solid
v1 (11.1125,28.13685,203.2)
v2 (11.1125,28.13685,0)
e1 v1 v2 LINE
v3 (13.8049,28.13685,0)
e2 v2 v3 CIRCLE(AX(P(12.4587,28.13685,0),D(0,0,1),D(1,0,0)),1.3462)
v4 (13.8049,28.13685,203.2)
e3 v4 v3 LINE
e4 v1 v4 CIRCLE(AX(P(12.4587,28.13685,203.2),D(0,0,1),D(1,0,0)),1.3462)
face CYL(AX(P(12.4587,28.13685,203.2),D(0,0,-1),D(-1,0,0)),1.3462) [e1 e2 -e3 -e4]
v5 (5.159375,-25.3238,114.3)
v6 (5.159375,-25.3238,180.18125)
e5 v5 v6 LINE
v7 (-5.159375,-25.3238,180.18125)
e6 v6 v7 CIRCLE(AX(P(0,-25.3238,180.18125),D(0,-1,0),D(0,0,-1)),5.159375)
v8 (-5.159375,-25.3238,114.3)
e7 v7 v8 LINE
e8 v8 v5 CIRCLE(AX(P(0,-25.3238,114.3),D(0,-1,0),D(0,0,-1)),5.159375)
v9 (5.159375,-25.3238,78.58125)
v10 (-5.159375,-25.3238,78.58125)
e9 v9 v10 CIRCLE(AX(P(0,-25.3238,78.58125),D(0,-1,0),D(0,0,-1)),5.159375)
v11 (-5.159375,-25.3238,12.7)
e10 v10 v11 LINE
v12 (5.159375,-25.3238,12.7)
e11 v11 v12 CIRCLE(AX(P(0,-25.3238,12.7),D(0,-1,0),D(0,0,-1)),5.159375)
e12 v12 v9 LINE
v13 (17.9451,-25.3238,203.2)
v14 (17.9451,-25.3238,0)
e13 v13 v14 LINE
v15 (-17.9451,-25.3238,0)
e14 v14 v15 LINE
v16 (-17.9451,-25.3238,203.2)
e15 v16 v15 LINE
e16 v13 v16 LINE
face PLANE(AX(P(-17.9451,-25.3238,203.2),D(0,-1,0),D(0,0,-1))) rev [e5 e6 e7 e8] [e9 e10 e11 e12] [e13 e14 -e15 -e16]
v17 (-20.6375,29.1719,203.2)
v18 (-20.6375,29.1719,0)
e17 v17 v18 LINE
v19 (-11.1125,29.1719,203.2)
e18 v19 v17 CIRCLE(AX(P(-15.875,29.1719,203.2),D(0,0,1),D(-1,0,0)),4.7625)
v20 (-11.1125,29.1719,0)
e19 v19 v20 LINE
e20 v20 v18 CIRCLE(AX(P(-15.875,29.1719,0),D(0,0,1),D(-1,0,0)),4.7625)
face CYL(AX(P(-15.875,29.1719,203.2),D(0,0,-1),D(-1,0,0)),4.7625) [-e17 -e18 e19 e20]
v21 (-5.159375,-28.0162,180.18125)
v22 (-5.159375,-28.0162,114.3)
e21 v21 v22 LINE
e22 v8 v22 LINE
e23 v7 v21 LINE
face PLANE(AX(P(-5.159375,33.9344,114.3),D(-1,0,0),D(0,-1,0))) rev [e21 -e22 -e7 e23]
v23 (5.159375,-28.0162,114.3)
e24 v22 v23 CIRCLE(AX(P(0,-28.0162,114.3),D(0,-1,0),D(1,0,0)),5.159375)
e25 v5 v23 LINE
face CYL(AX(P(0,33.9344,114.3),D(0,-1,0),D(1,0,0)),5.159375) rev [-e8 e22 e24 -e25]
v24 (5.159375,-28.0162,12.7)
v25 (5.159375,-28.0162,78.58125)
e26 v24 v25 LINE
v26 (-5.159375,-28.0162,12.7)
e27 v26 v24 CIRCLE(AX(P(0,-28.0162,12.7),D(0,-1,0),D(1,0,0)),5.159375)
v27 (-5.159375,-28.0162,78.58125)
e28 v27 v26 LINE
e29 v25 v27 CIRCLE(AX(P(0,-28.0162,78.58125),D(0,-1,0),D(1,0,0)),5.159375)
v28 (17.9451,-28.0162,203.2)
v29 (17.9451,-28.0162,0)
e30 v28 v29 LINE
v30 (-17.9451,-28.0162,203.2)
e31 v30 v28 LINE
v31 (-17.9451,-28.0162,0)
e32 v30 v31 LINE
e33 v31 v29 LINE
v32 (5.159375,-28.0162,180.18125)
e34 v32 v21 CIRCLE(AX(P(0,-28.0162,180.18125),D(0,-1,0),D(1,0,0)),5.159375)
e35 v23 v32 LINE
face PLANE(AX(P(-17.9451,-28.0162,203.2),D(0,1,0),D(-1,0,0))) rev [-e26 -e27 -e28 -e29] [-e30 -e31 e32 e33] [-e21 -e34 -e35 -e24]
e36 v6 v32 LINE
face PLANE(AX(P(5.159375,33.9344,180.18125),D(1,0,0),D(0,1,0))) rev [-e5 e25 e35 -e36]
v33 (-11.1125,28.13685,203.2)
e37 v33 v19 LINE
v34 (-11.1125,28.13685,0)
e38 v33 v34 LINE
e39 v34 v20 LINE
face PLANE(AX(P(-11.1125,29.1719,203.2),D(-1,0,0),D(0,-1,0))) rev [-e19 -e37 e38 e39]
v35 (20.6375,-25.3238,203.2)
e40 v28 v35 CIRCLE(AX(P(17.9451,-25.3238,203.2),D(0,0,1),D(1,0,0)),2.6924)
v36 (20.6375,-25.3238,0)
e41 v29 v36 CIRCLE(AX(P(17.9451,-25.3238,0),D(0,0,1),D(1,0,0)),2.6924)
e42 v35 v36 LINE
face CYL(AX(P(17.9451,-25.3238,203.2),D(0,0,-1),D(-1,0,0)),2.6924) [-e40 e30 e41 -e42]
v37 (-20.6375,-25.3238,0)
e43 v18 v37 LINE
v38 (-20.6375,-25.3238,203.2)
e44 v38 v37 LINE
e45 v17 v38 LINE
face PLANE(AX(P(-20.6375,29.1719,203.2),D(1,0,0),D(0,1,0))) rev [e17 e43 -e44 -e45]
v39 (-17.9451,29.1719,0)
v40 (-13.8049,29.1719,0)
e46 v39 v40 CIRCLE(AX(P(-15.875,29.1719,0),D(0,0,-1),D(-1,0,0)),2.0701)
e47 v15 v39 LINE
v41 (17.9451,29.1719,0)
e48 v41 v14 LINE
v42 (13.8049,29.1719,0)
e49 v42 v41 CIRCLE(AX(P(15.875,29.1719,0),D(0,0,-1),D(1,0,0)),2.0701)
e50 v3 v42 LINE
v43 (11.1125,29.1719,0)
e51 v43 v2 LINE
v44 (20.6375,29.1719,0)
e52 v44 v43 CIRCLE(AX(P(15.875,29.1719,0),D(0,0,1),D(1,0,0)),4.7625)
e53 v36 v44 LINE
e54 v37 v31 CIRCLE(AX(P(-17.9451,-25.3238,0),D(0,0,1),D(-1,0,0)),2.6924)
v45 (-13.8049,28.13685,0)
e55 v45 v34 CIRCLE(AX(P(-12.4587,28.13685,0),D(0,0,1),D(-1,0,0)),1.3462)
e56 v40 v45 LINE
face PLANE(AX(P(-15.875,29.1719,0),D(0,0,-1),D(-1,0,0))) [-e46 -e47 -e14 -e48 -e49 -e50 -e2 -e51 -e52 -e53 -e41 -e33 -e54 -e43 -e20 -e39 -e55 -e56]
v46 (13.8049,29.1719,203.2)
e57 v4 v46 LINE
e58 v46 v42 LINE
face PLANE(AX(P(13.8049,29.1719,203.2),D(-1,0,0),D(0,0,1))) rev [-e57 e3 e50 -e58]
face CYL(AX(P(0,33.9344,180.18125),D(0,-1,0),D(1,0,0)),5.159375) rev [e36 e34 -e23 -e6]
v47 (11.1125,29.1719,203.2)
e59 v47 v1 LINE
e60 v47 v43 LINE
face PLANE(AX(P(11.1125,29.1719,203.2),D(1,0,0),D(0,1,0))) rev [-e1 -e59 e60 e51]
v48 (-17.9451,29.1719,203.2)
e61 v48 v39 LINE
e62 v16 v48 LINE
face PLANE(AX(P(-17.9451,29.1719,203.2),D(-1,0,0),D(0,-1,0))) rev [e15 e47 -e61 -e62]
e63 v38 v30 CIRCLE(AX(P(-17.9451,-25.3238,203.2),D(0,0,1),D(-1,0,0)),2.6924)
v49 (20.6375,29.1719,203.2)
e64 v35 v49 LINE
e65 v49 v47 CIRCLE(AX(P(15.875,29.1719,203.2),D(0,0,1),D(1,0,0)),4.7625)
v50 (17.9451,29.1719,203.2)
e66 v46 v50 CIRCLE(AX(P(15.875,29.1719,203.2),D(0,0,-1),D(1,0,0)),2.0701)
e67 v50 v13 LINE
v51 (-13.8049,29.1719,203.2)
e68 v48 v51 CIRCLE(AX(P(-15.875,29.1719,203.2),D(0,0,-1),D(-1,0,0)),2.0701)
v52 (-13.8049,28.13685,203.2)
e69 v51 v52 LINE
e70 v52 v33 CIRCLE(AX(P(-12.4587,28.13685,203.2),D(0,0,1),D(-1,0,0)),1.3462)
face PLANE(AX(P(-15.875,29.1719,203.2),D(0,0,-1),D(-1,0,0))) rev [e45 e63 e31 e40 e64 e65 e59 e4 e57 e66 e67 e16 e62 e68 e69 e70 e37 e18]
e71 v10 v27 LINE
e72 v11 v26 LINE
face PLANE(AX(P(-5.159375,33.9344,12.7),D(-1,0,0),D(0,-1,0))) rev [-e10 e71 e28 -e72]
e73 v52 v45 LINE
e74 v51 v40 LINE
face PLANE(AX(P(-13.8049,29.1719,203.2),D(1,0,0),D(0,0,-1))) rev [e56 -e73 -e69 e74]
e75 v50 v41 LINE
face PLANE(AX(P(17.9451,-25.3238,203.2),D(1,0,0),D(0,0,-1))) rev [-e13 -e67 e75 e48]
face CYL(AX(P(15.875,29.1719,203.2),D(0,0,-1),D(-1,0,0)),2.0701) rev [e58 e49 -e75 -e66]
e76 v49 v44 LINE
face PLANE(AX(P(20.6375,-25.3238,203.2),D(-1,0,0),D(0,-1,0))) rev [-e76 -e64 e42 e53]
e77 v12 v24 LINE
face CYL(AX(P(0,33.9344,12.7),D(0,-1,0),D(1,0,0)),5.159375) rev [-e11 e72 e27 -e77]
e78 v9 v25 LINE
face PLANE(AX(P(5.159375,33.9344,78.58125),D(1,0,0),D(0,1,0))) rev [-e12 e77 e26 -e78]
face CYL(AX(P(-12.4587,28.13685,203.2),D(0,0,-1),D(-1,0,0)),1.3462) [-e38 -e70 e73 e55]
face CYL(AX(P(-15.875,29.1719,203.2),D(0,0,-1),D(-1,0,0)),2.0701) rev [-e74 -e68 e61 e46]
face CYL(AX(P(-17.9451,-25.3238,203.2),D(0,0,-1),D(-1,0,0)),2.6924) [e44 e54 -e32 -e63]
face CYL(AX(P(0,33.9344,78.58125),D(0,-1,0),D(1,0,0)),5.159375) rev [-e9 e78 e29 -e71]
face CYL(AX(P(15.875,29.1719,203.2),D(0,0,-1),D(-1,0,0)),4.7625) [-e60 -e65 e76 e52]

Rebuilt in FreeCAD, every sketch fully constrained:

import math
import FreeCAD as App
import Part
import Sketcher

V = App.Vector
Q = App.Units.Quantity

doc = App.newDocument("Part")
body = doc.addObject("PartDesign::Body", "Body")

# Sketch on XY plane
sketch1 = body.newObject("Sketcher::SketchObject", "Sketch")
sketch1.AttachmentSupport = (doc.getObject("XY_Plane"), [""])
sketch1.MapMode = "FlatFace"
sketch1.addGeometry(Part.LineSegment(V(-20.6, 29.2, 0), V(-20.6, -25.3, 0)), False)
sketch1.addGeometry(Part.ArcOfCircle(Part.Circle(V(-17.9, -25.3, 0), V(0, 0, 1), 2.7), math.radians(180), math.radians(270)), False)
sketch1.addGeometry(Part.LineSegment(V(-17.9, -28, 0), V(17.9, -28, 0)), False)
sketch1.addGeometry(Part.ArcOfCircle(Part.Circle(V(17.9, -25.3, 0), V(0, 0, 1), 2.7), math.radians(-90), math.radians(0)), False)
sketch1.addGeometry(Part.LineSegment(V(20.6, -25.3, 0), V(20.6, 29.2, 0)), False)
sketch1.addGeometry(Part.ArcOfCircle(Part.Circle(V(15.9, 29.2, 0), V(0, 0, 1), 4.8), math.radians(0), math.radians(180)), False)
sketch1.addGeometry(Part.LineSegment(V(11.1, 29.2, 0), V(11.1, 28.1, 0)), False)
sketch1.addGeometry(Part.ArcOfCircle(Part.Circle(V(12.5, 28.1, 0), V(0, 0, 1), 1.3), math.radians(180), math.radians(360)), False)
sketch1.addGeometry(Part.LineSegment(V(13.8, 28.1, 0), V(13.8, 29.2, 0)), False)
sketch1.addGeometry(Part.ArcOfCircle(Part.Circle(V(15.9, 29.2, 0), V(0, 0, 1), 2.1), math.radians(0), math.radians(180)), False)
sketch1.addGeometry(Part.LineSegment(V(17.9, 29.2, 0), V(17.9, -25.3, 0)), False)
sketch1.addGeometry(Part.LineSegment(V(17.9, -25.3, 0), V(-17.9, -25.3, 0)), False)
sketch1.addGeometry(Part.LineSegment(V(-17.9, -25.3, 0), V(-17.9, 29.2, 0)), False)
sketch1.addGeometry(Part.ArcOfCircle(Part.Circle(V(-15.9, 29.2, 0), V(0, 0, 1), 2.1), math.radians(0), math.radians(180)), False)
sketch1.addGeometry(Part.LineSegment(V(-13.8, 29.2, 0), V(-13.8, 28.1, 0)), False)
sketch1.addGeometry(Part.ArcOfCircle(Part.Circle(V(-12.5, 28.1, 0), V(0, 0, 1), 1.3), math.radians(180), math.radians(360)), False)
sketch1.addGeometry(Part.LineSegment(V(-11.1, 28.1, 0), V(-11.1, 29.2, 0)), False)
sketch1.addGeometry(Part.ArcOfCircle(Part.Circle(V(-15.9, 29.2, 0), V(0, 0, 1), 4.8), math.radians(0), math.radians(180)), False)
sketch1.addConstraint(Sketcher.Constraint("Tangent", 0, 2, 1, 1))
sketch1.addConstraint(Sketcher.Constraint("Tangent", 1, 2, 2, 1))
sketch1.addConstraint(Sketcher.Constraint("Tangent", 2, 2, 3, 1))
sketch1.addConstraint(Sketcher.Constraint("Tangent", 3, 2, 4, 1))
sketch1.addConstraint(Sketcher.Constraint("Tangent", 4, 2, 5, 1))
sketch1.addConstraint(Sketcher.Constraint("Tangent", 5, 2, 6, 1))
sketch1.addConstraint(Sketcher.Constraint("Tangent", 6, 2, 7, 1))
sketch1.addConstraint(Sketcher.Constraint("Tangent", 7, 2, 8, 1))
sketch1.addConstraint(Sketcher.Constraint("Tangent", 8, 2, 9, 2))
sketch1.addConstraint(Sketcher.Constraint("Tangent", 9, 1, 10, 1))
sketch1.addConstraint(Sketcher.Constraint("Coincident", 10, 2, 11, 1))
sketch1.addConstraint(Sketcher.Constraint("Coincident", 11, 2, 12, 1))
sketch1.addConstraint(Sketcher.Constraint("Tangent", 12, 2, 13, 2))
sketch1.addConstraint(Sketcher.Constraint("Tangent", 13, 1, 14, 1))
sketch1.addConstraint(Sketcher.Constraint("Tangent", 14, 2, 15, 1))
sketch1.addConstraint(Sketcher.Constraint("Tangent", 15, 2, 16, 1))
sketch1.addConstraint(Sketcher.Constraint("Tangent", 16, 2, 17, 1))
sketch1.addConstraint(Sketcher.Constraint("Tangent", 17, 2, 0, 1))
sketch1.addConstraint(Sketcher.Constraint("Vertical", 0))
sketch1.addConstraint(Sketcher.Constraint("Horizontal", 2))
sketch1.addConstraint(Sketcher.Constraint("Vertical", 4))
sketch1.addConstraint(Sketcher.Constraint("Vertical", 6))
sketch1.addConstraint(Sketcher.Constraint("Vertical", 8))
sketch1.addConstraint(Sketcher.Constraint("Vertical", 10))
sketch1.addConstraint(Sketcher.Constraint("Horizontal", 11))
sketch1.addConstraint(Sketcher.Constraint("Vertical", 12))
sketch1.addConstraint(Sketcher.Constraint("Vertical", 14))
sketch1.addConstraint(Sketcher.Constraint("Vertical", 16))
sketch1.addConstraint(Sketcher.Constraint("Coincident", 9, 3, 5, 3))
sketch1.addConstraint(Sketcher.Constraint("Coincident", 17, 3, 13, 3))
sketch1.addConstraint(Sketcher.Constraint("Coincident", 10, 2, 3, 3))
sketch1.addConstraint(Sketcher.Constraint("Coincident", 11, 2, 1, 3))
sketch1.addConstraint(Sketcher.Constraint("Equal", 9, 13))
sketch1.addConstraint(Sketcher.Constraint("Symmetric", 5, 3, 13, 3, -2))
sketch1.addConstraint(Sketcher.Constraint("Horizontal", 7, 3, 15, 3))
sketch1.addConstraint(Sketcher.Constraint("Radius", 1, Q("0.106 in")))
sketch1.addConstraint(Sketcher.Constraint("Radius", 5, Q("0.1875 in")))
sketch1.addConstraint(Sketcher.Constraint("DistanceX", 2, 1, 2, 2, Q("1.413 in")))
sketch1.addConstraint(Sketcher.Constraint("DistanceY", 0, 2, 0, 1, Q("2.1455 in")))
sketch1.addConstraint(Sketcher.Constraint("DistanceY", 1, 3, -1, 1, Q("0.997 in")))
sketch1.addConstraint(Sketcher.Constraint("DistanceY", 6, 2, 6, 1, 1.03505))
pad1 = body.newObject("PartDesign::Pad", "Pad")
pad1.Profile = sketch1
pad1.Length = Q("8 in")

# Sketch on XZ plane
sketch2 = body.newObject("Sketcher::SketchObject", "Sketch001")
sketch2.AttachmentSupport = (doc.getObject("XZ_Plane"), [""])
sketch2.MapMode = "FlatFace"
sketch2.AttachmentOffset = App.Placement(V(0, 0, 1.103 * 25.4), App.Rotation())
sketch2.addGeometry(Part.LineSegment(V(5, 13, 0), V(5, 79, 0)), False)
sketch2.addGeometry(Part.ArcOfCircle(Part.Circle(V(0, 79, 0), V(0, 0, 1), 5), math.radians(0), math.radians(180)), False)
sketch2.addGeometry(Part.LineSegment(V(-5, 79, 0), V(-5, 13, 0)), False)
sketch2.addGeometry(Part.ArcOfCircle(Part.Circle(V(0, 13, 0), V(0, 0, 1), 5), math.radians(180), math.radians(360)), False)
sketch2.addConstraint(Sketcher.Constraint("Tangent", 0, 2, 1, 1))
sketch2.addConstraint(Sketcher.Constraint("Tangent", 1, 2, 2, 1))
sketch2.addConstraint(Sketcher.Constraint("Tangent", 2, 2, 3, 1))
sketch2.addConstraint(Sketcher.Constraint("Tangent", 3, 2, 0, 1))
sketch2.addConstraint(Sketcher.Constraint("Vertical", 0))
sketch2.addConstraint(Sketcher.Constraint("Vertical", 2))
sketch2.addConstraint(Sketcher.Constraint("PointOnObject", 1, 3, -2))
sketch2.addConstraint(Sketcher.Constraint("Radius", 1, Q("0.203125 in")))
sketch2.addConstraint(Sketcher.Constraint("DistanceY", -1, 1, 3, 3, Q("0.5 in")))
sketch2.addConstraint(Sketcher.Constraint("DistanceY", 0, 1, 0, 2, Q("2.59375 in")))
pocket1 = body.newObject("PartDesign::Pocket", "Pocket")
pocket1.Profile = sketch2
pocket1.Type = "ThroughAll"
doc.recompute()

linearpattern = body.newObject("PartDesign::LinearPattern", "LinearPattern")
linearpattern.Originals = [pocket1]
linearpattern.Direction = (doc.getObject("Z_Axis"), [""])
linearpattern.Mode = "offset"
linearpattern.Offset = Q("4 in")
linearpattern.Occurrences = 2
body.Tip = linearpattern

doc.recompute()
